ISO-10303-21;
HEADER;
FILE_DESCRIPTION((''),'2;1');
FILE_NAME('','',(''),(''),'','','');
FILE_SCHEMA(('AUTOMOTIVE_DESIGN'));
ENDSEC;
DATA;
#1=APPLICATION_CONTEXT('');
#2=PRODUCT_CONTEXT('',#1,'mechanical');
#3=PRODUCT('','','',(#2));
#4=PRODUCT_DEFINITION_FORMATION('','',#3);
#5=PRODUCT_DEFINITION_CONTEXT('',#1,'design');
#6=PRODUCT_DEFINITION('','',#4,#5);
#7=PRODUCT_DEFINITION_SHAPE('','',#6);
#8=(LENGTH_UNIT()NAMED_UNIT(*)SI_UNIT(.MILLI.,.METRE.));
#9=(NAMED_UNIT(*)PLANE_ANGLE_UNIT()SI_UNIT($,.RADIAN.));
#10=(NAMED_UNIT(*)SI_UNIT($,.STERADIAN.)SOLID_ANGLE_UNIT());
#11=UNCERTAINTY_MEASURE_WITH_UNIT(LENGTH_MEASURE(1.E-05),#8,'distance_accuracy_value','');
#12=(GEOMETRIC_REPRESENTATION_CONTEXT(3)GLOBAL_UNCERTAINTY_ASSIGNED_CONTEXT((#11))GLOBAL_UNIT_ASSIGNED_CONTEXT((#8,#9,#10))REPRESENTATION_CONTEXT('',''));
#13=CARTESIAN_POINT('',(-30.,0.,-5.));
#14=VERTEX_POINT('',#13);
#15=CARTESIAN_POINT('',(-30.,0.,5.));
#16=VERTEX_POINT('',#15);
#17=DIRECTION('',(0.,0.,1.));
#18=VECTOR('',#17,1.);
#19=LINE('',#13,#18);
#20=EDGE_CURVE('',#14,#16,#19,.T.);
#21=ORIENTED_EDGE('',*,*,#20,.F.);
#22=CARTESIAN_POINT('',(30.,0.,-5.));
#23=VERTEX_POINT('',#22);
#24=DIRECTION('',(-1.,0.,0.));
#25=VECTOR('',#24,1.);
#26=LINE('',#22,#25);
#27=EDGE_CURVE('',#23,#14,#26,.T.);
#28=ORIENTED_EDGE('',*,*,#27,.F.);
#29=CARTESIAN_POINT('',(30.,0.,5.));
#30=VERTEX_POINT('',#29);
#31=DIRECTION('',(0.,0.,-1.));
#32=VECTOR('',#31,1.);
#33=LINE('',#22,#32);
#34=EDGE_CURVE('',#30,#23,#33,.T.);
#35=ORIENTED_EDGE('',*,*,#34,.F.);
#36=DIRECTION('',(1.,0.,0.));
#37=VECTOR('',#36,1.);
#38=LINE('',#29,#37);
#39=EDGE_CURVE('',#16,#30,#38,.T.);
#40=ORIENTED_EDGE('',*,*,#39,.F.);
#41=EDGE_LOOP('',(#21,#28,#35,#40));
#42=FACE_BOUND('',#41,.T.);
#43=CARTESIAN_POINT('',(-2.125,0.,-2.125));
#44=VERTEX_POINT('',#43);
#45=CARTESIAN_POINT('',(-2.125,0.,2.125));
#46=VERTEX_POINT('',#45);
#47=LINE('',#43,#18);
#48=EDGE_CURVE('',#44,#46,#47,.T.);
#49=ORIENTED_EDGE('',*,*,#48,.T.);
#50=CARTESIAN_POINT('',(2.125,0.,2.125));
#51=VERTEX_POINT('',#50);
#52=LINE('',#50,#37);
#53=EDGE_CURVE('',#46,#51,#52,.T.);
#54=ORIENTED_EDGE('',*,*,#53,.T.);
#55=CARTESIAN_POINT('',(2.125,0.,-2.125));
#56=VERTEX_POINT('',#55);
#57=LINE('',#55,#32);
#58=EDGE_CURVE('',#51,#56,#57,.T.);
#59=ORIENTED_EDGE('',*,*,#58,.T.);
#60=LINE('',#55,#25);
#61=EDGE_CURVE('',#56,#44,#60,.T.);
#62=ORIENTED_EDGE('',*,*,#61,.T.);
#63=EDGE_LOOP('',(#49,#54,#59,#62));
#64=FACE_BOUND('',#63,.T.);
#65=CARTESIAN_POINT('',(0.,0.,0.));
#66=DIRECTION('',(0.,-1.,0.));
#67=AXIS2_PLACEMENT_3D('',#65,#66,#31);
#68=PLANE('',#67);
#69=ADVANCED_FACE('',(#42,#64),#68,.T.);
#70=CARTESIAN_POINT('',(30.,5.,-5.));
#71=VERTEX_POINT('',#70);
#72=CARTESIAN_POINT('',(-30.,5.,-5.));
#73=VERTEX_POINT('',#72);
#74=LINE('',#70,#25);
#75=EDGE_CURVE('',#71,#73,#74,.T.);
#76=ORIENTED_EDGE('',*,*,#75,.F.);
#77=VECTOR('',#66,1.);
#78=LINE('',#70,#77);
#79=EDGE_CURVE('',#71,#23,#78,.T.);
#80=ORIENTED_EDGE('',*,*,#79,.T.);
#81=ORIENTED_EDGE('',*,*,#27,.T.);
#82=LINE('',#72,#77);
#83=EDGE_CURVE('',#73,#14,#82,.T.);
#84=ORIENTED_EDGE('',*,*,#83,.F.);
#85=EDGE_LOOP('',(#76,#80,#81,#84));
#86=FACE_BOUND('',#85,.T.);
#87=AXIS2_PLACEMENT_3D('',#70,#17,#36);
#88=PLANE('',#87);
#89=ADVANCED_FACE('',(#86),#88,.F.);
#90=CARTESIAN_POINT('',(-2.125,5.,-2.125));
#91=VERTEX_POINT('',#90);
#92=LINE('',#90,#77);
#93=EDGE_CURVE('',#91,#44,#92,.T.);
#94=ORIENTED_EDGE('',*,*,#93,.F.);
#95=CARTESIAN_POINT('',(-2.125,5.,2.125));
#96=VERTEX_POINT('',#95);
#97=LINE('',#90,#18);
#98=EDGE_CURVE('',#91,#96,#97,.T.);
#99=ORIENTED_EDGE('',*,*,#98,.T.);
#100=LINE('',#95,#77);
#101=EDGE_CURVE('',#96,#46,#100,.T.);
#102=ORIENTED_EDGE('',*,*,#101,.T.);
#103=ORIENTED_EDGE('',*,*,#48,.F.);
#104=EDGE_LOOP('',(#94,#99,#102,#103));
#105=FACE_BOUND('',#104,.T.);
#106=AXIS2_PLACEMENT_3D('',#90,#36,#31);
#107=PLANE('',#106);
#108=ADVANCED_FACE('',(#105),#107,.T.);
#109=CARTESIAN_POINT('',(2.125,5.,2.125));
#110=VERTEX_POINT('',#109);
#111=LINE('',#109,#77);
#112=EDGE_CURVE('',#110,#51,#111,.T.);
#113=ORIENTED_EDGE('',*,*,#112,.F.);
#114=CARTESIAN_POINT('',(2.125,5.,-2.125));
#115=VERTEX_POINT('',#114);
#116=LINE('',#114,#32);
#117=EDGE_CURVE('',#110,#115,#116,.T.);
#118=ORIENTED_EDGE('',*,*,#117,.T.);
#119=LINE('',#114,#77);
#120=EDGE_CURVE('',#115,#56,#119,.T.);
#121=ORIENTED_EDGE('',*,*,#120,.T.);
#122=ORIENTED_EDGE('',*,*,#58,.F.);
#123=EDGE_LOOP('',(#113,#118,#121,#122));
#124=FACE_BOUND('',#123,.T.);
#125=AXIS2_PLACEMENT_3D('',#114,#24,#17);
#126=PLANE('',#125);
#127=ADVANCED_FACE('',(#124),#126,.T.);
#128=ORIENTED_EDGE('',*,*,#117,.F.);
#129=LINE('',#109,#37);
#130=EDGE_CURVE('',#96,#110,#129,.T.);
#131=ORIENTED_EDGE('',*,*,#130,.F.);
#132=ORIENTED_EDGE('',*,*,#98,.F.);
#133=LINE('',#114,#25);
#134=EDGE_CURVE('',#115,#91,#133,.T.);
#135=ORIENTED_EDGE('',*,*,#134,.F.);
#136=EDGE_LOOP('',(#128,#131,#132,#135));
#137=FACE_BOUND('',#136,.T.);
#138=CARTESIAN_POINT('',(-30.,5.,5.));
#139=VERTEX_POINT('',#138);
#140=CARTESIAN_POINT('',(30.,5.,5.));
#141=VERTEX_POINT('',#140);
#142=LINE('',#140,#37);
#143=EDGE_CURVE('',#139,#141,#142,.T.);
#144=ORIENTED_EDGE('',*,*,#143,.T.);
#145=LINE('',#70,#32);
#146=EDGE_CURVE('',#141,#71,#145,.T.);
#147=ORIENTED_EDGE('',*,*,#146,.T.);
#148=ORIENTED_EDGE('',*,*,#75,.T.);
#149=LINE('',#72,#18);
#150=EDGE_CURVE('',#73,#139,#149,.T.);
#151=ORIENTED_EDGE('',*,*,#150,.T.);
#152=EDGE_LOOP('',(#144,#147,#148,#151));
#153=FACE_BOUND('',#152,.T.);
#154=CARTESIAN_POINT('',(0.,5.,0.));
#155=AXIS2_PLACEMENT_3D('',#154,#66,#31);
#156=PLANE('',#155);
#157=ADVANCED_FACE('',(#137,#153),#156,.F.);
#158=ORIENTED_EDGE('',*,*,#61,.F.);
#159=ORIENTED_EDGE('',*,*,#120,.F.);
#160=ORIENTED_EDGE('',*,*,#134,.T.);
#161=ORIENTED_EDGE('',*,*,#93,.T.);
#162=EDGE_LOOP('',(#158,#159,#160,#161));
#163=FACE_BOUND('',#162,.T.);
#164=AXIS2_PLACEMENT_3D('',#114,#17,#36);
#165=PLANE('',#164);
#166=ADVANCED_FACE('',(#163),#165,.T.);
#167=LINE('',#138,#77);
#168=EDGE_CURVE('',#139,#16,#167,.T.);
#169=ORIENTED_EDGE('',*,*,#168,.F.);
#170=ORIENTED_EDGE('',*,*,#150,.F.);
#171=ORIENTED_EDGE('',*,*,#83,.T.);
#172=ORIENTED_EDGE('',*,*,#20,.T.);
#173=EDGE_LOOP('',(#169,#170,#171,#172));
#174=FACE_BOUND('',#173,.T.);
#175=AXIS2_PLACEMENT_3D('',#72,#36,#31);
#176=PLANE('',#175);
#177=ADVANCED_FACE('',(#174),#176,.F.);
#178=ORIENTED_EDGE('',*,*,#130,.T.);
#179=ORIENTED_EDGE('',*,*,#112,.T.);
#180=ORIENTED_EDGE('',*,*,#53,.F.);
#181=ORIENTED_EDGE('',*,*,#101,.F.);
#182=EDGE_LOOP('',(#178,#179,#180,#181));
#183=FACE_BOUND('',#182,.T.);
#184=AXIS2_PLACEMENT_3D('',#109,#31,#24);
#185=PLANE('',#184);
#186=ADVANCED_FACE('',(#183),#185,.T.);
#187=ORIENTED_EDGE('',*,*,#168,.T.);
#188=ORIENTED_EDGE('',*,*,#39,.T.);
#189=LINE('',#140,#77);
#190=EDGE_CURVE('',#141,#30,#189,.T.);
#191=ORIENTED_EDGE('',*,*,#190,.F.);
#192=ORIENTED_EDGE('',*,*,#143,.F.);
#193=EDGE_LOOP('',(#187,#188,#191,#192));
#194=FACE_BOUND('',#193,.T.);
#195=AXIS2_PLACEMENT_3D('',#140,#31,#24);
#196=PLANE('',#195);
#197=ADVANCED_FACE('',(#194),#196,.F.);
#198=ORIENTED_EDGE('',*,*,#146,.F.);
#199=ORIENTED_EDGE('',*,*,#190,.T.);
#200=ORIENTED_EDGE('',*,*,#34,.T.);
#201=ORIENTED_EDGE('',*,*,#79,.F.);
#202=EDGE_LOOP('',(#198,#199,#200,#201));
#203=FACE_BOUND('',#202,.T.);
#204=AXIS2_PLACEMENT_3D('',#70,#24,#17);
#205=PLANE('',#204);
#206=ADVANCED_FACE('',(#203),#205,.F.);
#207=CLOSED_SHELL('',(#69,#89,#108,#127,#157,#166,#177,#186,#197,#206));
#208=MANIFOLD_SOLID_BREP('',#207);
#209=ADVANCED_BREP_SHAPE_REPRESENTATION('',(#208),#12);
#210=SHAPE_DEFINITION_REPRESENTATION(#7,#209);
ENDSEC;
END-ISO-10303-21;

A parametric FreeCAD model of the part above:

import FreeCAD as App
import Part
import Sketcher
from FreeCAD import Vector


def add_polygon(sketch, points):
    """Adds a closed chain of lines whose ends are joined by coincident constraints."""
    first, n = sketch.GeometryCount, len(points)
    for a, b in zip(points, points[1:] + points[:1]):
        sketch.addGeometry(Part.LineSegment(App.Vector(*a, 0), App.Vector(*b, 0)), False)
    for i in range(n):
        sketch.addConstraint(Sketcher.Constraint("Coincident", first + i, 2, first + (i + 1) % n, 1))

doc = App.newDocument("Part")
body = doc.addObject("PartDesign::Body", "Body")

# Sketch on XZ plane
sketch1 = body.newObject("Sketcher::SketchObject", "Sketch")
sketch1.AttachmentSupport = (doc.getObject("XZ_Plane"), [""])
sketch1.MapMode = "FlatFace"
add_polygon(sketch1, [(-30, -5), (-30, 5), (30, 5), (30, -5)])  # lines 0-3
add_polygon(sketch1, [(2.1, 2.1), (-2.1, 2.1), (-2.1, -2.1), (2.1, -2.1)])  # lines 4-7
sketch1.addConstraint(Sketcher.Constraint("Vertical", 0))
sketch1.addConstraint(Sketcher.Constraint("Horizontal", 1))
sketch1.addConstraint(Sketcher.Constraint("Vertical", 2))
sketch1.addConstraint(Sketcher.Constraint("Horizontal", 3))
sketch1.addConstraint(Sketcher.Constraint("Horizontal", 4))
sketch1.addConstraint(Sketcher.Constraint("Vertical", 5))
sketch1.addConstraint(Sketcher.Constraint("Horizontal", 6))
sketch1.addConstraint(Sketcher.Constraint("Vertical", 7))
sketch1.addConstraint(Sketcher.Constraint("Symmetric", 0, 2, 2, 2, -1, 1))
sketch1.addConstraint(Sketcher.Constraint("Symmetric", 4, 2, 6, 2, -1, 1))
sketch1.addConstraint(Sketcher.Constraint("Equal", 6, 5))
sketch1.addConstraint(Sketcher.Constraint("DistanceX", 1, 1, 1, 2, 60.0))
sketch1.addConstraint(Sketcher.Constraint("DistanceY", 0, 1, 0, 2, 10.0))
sketch1.addConstraint(Sketcher.Constraint("DistanceX", 4, 2, 4, 1, 4.25))
pad1 = body.newObject("PartDesign::Pad", "Pad")
pad1.Profile = sketch1
pad1.Length = 5
pad1.Reversed = True

doc.recompute()
